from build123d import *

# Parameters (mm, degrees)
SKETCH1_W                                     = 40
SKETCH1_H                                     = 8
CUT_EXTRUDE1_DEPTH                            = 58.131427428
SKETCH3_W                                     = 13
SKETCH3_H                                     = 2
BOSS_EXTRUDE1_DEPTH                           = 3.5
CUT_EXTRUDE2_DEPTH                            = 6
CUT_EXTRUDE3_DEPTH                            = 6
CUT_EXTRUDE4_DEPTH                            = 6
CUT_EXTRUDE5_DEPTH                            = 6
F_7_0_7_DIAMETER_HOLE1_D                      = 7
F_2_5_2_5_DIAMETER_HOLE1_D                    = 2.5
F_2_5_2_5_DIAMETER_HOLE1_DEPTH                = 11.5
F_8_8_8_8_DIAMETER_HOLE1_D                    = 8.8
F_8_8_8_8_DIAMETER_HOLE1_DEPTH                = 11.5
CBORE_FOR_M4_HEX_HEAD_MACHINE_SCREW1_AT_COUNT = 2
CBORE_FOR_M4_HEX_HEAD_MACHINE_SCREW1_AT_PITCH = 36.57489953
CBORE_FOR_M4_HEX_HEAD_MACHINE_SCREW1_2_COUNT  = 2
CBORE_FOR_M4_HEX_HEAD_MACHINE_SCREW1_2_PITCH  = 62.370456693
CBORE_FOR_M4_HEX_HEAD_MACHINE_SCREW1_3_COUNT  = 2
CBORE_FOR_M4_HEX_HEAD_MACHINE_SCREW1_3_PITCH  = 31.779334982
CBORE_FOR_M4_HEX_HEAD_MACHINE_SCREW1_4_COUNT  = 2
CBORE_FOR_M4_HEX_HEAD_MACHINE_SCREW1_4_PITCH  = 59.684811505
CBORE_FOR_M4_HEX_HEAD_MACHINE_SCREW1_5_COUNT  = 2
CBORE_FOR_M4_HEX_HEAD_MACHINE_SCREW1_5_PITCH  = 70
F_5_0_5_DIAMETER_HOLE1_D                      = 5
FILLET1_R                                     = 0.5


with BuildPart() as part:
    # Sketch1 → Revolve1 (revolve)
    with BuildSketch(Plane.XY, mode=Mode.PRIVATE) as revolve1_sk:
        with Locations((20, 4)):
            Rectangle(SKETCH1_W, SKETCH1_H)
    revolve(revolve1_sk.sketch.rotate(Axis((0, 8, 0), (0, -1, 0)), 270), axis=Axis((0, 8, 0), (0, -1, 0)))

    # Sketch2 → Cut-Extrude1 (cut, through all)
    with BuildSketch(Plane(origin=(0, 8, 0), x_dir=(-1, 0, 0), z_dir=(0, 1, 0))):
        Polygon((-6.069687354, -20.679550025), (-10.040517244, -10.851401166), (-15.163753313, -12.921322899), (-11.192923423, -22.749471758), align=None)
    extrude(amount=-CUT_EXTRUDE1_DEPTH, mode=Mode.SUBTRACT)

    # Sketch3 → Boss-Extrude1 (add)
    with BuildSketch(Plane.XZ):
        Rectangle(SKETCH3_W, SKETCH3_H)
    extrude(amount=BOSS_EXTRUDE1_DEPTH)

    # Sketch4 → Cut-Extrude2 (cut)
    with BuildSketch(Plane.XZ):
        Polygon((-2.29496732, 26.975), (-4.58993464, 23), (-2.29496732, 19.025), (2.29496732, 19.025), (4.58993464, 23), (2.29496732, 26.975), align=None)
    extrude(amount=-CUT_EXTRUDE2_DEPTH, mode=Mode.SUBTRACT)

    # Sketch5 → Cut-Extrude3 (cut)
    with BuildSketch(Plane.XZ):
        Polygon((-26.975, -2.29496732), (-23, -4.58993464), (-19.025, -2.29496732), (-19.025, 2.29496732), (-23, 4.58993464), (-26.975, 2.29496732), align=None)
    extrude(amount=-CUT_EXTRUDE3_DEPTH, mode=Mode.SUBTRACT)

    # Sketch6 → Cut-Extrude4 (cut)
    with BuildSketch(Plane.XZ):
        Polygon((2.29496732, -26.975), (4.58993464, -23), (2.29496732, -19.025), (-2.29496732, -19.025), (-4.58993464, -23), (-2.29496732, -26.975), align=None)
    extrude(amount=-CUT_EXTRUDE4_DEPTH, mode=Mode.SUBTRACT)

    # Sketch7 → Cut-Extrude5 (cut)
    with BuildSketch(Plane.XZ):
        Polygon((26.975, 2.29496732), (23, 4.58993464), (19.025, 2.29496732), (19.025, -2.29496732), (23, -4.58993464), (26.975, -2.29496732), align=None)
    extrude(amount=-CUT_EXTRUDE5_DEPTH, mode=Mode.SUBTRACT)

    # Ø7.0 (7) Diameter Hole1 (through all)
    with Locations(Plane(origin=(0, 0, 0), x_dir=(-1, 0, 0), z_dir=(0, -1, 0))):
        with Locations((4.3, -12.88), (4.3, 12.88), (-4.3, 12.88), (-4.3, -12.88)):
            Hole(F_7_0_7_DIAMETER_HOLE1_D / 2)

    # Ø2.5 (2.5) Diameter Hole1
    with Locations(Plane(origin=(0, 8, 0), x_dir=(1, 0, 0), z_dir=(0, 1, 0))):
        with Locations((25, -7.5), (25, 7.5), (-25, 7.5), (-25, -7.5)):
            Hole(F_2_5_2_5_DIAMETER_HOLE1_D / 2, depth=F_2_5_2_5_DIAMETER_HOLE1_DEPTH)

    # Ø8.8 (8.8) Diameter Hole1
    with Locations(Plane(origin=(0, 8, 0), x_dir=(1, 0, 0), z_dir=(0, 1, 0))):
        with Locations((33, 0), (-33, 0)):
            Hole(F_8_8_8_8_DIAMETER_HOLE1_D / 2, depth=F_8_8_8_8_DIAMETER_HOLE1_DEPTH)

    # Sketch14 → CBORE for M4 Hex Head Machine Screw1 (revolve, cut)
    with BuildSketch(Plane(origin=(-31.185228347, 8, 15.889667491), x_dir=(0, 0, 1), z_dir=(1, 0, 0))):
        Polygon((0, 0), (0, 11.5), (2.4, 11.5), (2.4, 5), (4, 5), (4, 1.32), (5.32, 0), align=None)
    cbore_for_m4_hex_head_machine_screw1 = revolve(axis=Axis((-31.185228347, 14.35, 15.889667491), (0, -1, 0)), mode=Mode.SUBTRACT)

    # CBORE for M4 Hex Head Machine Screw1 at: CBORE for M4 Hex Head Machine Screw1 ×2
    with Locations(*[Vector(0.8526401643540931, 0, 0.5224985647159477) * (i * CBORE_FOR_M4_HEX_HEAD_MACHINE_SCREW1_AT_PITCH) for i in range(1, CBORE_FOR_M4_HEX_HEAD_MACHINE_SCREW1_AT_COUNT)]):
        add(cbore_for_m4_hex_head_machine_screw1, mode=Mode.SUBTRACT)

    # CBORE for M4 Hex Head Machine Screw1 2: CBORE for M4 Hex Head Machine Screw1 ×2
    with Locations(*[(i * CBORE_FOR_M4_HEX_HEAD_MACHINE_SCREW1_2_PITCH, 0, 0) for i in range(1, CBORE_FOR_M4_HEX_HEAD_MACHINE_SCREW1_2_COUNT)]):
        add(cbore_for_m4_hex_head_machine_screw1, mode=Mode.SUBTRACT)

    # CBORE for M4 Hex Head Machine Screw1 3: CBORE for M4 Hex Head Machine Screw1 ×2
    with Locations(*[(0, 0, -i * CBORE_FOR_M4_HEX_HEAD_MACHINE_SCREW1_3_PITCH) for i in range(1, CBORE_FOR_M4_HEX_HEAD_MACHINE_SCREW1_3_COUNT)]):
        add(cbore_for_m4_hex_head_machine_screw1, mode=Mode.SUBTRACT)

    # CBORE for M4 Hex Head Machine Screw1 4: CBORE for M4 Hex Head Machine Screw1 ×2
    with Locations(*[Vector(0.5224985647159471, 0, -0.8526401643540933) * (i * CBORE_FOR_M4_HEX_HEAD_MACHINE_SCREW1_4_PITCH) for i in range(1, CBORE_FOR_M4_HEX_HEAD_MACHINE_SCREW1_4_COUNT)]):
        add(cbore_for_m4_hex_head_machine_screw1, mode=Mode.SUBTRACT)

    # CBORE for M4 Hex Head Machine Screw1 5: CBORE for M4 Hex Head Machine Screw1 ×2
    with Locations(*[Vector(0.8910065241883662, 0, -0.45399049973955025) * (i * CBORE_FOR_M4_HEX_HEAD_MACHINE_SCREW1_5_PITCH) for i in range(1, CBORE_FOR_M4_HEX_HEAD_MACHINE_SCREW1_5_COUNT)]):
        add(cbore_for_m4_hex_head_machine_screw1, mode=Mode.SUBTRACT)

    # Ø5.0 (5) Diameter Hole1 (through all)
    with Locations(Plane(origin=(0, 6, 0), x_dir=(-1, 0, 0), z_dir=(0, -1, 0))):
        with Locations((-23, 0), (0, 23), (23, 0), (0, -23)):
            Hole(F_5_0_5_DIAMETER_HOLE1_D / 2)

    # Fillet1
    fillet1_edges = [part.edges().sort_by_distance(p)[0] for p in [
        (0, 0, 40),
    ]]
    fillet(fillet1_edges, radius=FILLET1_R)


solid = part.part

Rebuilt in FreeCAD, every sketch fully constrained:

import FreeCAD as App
import Part
import Sketcher
from FreeCAD import Vector
Q = App.Units.Quantity


def edges_at(feature, points):
    """Names of the edges that pass closest to the given points."""
    edges = feature.Shape.Edges
    near = lambda p: min(range(len(edges)), key=lambda i: edges[i].distToShape(Part.Vertex(*p))[0])
    return sorted({f"Edge{near(p) + 1}" for p in points})


def add_polygon(sketch, points):
    """Adds a closed chain of lines whose ends are joined by coincident constraints."""
    first, n = sketch.GeometryCount, len(points)
    for a, b in zip(points, points[1:] + points[:1]):
        sketch.addGeometry(Part.LineSegment(App.Vector(*a, 0), App.Vector(*b, 0)), False)
    for i in range(n):
        sketch.addConstraint(Sketcher.Constraint("Coincident", first + i, 2, first + (i + 1) % n, 1))

doc = App.newDocument("Part")
body = doc.addObject("PartDesign::Body", "Body")

sketch1 = body.newObject("Sketcher::SketchObject", "Sketch")
sketch1.AttachmentSupport = (doc.getObject("XY_Plane"), [""])
sketch1.MapMode = "FlatFace"
add_polygon(sketch1, [(0, 8), (0, 0), (40, 0), (40, 8)])
sketch1.addConstraint([
    Sketcher.Constraint("Vertical", 0),
    Sketcher.Constraint("Horizontal", 1),
    Sketcher.Constraint("Vertical", 2),
    Sketcher.Constraint("Horizontal", 3),
    Sketcher.Constraint("Coincident", 0, 2, -1, 1),
    Sketcher.Constraint("DistanceX", 1, 1, 1, 2, Q("40 mm")),
    Sketcher.Constraint("DistanceY", 0, 2, 0, 1, Q("8 mm")),
])
revolution = body.newObject("PartDesign::Revolution", "Revolution")
revolution.Profile = sketch1
revolution.ReferenceAxis = (sketch1, ["V_Axis"])
revolution.Angle = 360

sketch2 = body.newObject("Sketcher::SketchObject", "Sketch001")
sketch2.AttachmentSupport = (doc.getObject("XZ_Plane"), [""])
sketch2.MapMode = "FlatFace"
sketch2.AttachmentOffset = App.Placement(Vector(0, 0, -8), App.Rotation())
add_polygon(sketch2, [(6, -21), (10, -11), (15, -13), (11, -23)])
sketch2.addConstraint([
    Sketcher.Constraint("Perpendicular", 0, 1),
    Sketcher.Constraint("Perpendicular", 1, 2),
    Sketcher.Constraint("Perpendicular", 2, 3),
    Sketcher.Constraint("Angle", 0, Q("68 deg")),
    Sketcher.Constraint("Distance", 0, Q("10.6 mm")),
    Sketcher.Constraint("DistanceY", 0, 2, -1, 1, Q("10.851401 mm")),
    Sketcher.Constraint("Distance", 1, Q("5.525588 mm")),
    Sketcher.Constraint("DistanceX", -1, 1, 0, 2, Q("10.040517 mm")),
])
pocket1 = body.newObject("PartDesign::Pocket", "Pocket")
pocket1.Profile = sketch2
pocket1.Type = "ThroughAll"
pocket1.Reversed = True

sketch3 = body.newObject("Sketcher::SketchObject", "Sketch002")
sketch3.AttachmentSupport = (doc.getObject("XZ_Plane"), [""])
sketch3.MapMode = "FlatFace"
add_polygon(sketch3, [(-6.5, 1), (-6.5, -1), (6.5, -1), (6.5, 1)])
sketch3.addConstraint([
    Sketcher.Constraint("Vertical", 0),
    Sketcher.Constraint("Horizontal", 1),
    Sketcher.Constraint("Vertical", 2),
    Sketcher.Constraint("Horizontal", 3),
    Sketcher.Constraint("Symmetric", 0, 2, 2, 2, -1, 1),
    Sketcher.Constraint("DistanceX", 1, 1, 1, 2, Q("13 mm")),
    Sketcher.Constraint("DistanceY", 0, 2, 0, 1, Q("2 mm")),
])
pad1 = body.newObject("PartDesign::Pad", "Pad")
pad1.Profile = sketch3
pad1.Length = 3.5

sketch4 = body.newObject("Sketcher::SketchObject", "Sketch003")
sketch4.AttachmentSupport = (doc.getObject("XZ_Plane"), [""])
sketch4.MapMode = "FlatFace"
add_polygon(sketch4, [(-2.3, 27), (-4.6, 23), (-2.3, 19), (2.3, 19), (4.6, 23), (2.3, 27)])
sketch4.addConstraint([
    Sketcher.Constraint("Horizontal", 2),
    Sketcher.Constraint("Horizontal", 5),
    Sketcher.Constraint("Symmetric", 0, 2, 3, 2, -2),
    Sketcher.Constraint("Parallel", 0, 3),
    Sketcher.Constraint("Parallel", 1, 4),
    Sketcher.Constraint("Vertical", 2, 2, 4, 2),
    Sketcher.Constraint("Vertical", 1, 2, 5, 2),
    Sketcher.Constraint("Angle", 0, Q("-120 deg")),
    Sketcher.Constraint("DistanceY", -1, 1, 0, 2, Q("23 mm")),
    Sketcher.Constraint("DistanceY", 2, 2, 4, 2, Q("7.95 mm")),
    Sketcher.Constraint("DistanceX", 0, 2, 2, 2, Q("6.884902 mm")),
])
pocket2 = body.newObject("PartDesign::Pocket", "Pocket001")
pocket2.Profile = sketch4
pocket2.Length = 6

sketch5 = body.newObject("Sketcher::SketchObject", "Sketch004")
sketch5.AttachmentSupport = (doc.getObject("XZ_Plane"), [""])
sketch5.MapMode = "FlatFace"
add_polygon(sketch5, [(-27, -2.3), (-23, -4.6), (-19, -2.3), (-19, 2.3), (-23, 4.6), (-27, 2.3)])
sketch5.addConstraint([
    Sketcher.Constraint("Vertical", 2),
    Sketcher.Constraint("Vertical", 5),
    Sketcher.Constraint("Symmetric", 0, 2, 3, 2, -1),
    Sketcher.Constraint("Parallel", 0, 3),
    Sketcher.Constraint("Parallel", 1, 4),
    Sketcher.Constraint("Horizontal", 2, 2, 4, 2),
    Sketcher.Constraint("Horizontal", 1, 2, 5, 2),
    Sketcher.Constraint("Angle", 0, Q("-30 deg")),
    Sketcher.Constraint("DistanceX", 0, 2, -1, 1, Q("23 mm")),
    Sketcher.Constraint("DistanceX", 4, 2, 2, 2, Q("7.95 mm")),
    Sketcher.Constraint("DistanceY", 0, 2, 2, 2, Q("6.884902 mm")),
])
pocket3 = body.newObject("PartDesign::Pocket", "Pocket002")
pocket3.Profile = sketch5
pocket3.Length = 6

sketch6 = body.newObject("Sketcher::SketchObject", "Sketch005")
sketch6.AttachmentSupport = (doc.getObject("XZ_Plane"), [""])
sketch6.MapMode = "FlatFace"
add_polygon(sketch6, [(2.3, -27), (4.6, -23), (2.3, -19), (-2.3, -19), (-4.6, -23), (-2.3, -27)])
sketch6.addConstraint([
    Sketcher.Constraint("Horizontal", 2),
    Sketcher.Constraint("Horizontal", 5),
    Sketcher.Constraint("Symmetric", 0, 2, 3, 2, -2),
    Sketcher.Constraint("Parallel", 0, 3),
    Sketcher.Constraint("Parallel", 1, 4),
    Sketcher.Constraint("Vertical", 2, 2, 4, 2),
    Sketcher.Constraint("Vertical", 1, 2, 5, 2),
    Sketcher.Constraint("Angle", 0, Q("60 deg")),
    Sketcher.Constraint("DistanceY", 0, 2, -1, 1, Q("23 mm")),
    Sketcher.Constraint("DistanceY", 4, 2, 2, 2, Q("7.95 mm")),
    Sketcher.Constraint("DistanceX", 2, 2, 0, 2, Q("6.884902 mm")),
])
pocket4 = body.newObject("PartDesign::Pocket", "Pocket003")
pocket4.Profile = sketch6
pocket4.Length = 6

sketch7 = body.newObject("Sketcher::SketchObject", "Sketch006")
sketch7.AttachmentSupport = (doc.getObject("XZ_Plane"), [""])
sketch7.MapMode = "FlatFace"
add_polygon(sketch7, [(27, 2.3), (23, 4.6), (19, 2.3), (19, -2.3), (23, -4.6), (27, -2.3)])
sketch7.addConstraint([
    Sketcher.Constraint("Vertical", 2),
    Sketcher.Constraint("Vertical", 5),
    Sketcher.Constraint("Symmetric", 0, 2, 3, 2, -1),
    Sketcher.Constraint("Parallel", 0, 3),
    Sketcher.Constraint("Parallel", 1, 4),
    Sketcher.Constraint("Horizontal", 2, 2, 4, 2),
    Sketcher.Constraint("Horizontal", 1, 2, 5, 2),
    Sketcher.Constraint("Angle", 0, Q("150 deg")),
    Sketcher.Constraint("DistanceX", -1, 1, 0, 2, Q("23 mm")),
    Sketcher.Constraint("DistanceX", 2, 2, 4, 2, Q("7.95 mm")),
    Sketcher.Constraint("DistanceY", 2, 2, 0, 2, Q("6.884902 mm")),
])
pocket5 = body.newObject("PartDesign::Pocket", "Pocket004")
pocket5.Profile = sketch7
pocket5.Length = 6

sketch8 = body.newObject("Sketcher::SketchObject", "Sketch007")
sketch8.AttachmentSupport = (doc.getObject("XZ_Plane"), [""])
sketch8.MapMode = "FlatFace"
sketch8.addGeometry([
    Part.Circle(Vector(-4.3, 12.9, 0), Vector(0, 0, 1), 3.5),
    Part.Circle(Vector(-4.3, -12.9, 0), Vector(0, 0, 1), 3.5),
    Part.Circle(Vector(4.3, -12.9, 0), Vector(0, 0, 1), 3.5),
    Part.Circle(Vector(4.3, 12.9, 0), Vector(0, 0, 1), 3.5),
], False)
sketch8.addConstraint([
    Sketcher.Constraint("Equal", 0, 1),
    Sketcher.Constraint("Equal", 1, 2),
    Sketcher.Constraint("Equal", 2, 3),
    Sketcher.Constraint("Symmetric", 0, 3, 2, 3, -1, 1),
    Sketcher.Constraint("Symmetric", 1, 3, 3, 3, -1, 1),
    Sketcher.Constraint("Symmetric", 1, 3, 2, 3, -2),
    Sketcher.Constraint("Diameter", 0, Q("7 mm")),
    Sketcher.Constraint("DistanceX", 0, 3, -1, 1, Q("4.3 mm")),
    Sketcher.Constraint("DistanceY", -1, 1, 0, 3, Q("12.88 mm")),
])
doc.recompute()
hole = body.newObject("PartDesign::Hole", "Hole")
hole.Profile = sketch8
hole.ThreadType = "None"
hole.Diameter = 7
hole.DepthType = "ThroughAll"

sketch9 = body.newObject("Sketcher::SketchObject", "Sketch008")
sketch9.AttachmentSupport = (doc.getObject("XZ_Plane"), [""])
sketch9.MapMode = "FlatFace"
sketch9.AttachmentOffset = App.Placement(Vector(0, 0, -8), App.Rotation())
sketch9.addGeometry([
    Part.Circle(Vector(25, 7.5, 0), Vector(0, 0, 1), 1.2),
    Part.Circle(Vector(25, -7.5, 0), Vector(0, 0, 1), 1.2),
    Part.Circle(Vector(-25, -7.5, 0), Vector(0, 0, 1), 1.2),
    Part.Circle(Vector(-25, 7.5, 0), Vector(0, 0, 1), 1.2),
], False)
sketch9.addConstraint([
    Sketcher.Constraint("Equal", 0, 1),
    Sketcher.Constraint("Equal", 1, 2),
    Sketcher.Constraint("Equal", 2, 3),
    Sketcher.Constraint("Symmetric", 0, 3, 2, 3, -1, 1),
    Sketcher.Constraint("Symmetric", 1, 3, 3, 3, -1, 1),
    Sketcher.Constraint("Symmetric", 1, 3, 2, 3, -2),
    Sketcher.Constraint("Diameter", 0, Q("2.5 mm")),
    Sketcher.Constraint("DistanceX", -1, 1, 0, 3, Q("25 mm")),
    Sketcher.Constraint("DistanceY", 1, 3, 0, 3, Q("15 mm")),
])
doc.recompute()
hole2 = body.newObject("PartDesign::Hole", "Hole001")
hole2.Profile = sketch9
hole2.ThreadType = "None"
hole2.Diameter = 2.5
hole2.DepthType = "Dimension"
hole2.Depth = 11.5
hole2.DrillPoint = "Flat"
hole2.Reversed = True

sketch10 = body.newObject("Sketcher::SketchObject", "Sketch009")
sketch10.AttachmentSupport = (doc.getObject("XZ_Plane"), [""])
sketch10.MapMode = "FlatFace"
sketch10.AttachmentOffset = App.Placement(Vector(0, 0, -8), App.Rotation())
sketch10.addGeometry([
    Part.Circle(Vector(33, 0, 0), Vector(0, 0, 1), 4.4),
    Part.Circle(Vector(-33, 0, 0), Vector(0, 0, 1), 4.4),
], False)
sketch10.addConstraint([
    Sketcher.Constraint("Equal", 0, 1),
    Sketcher.Constraint("Symmetric", 0, 3, 1, 3, -1, 1),
    Sketcher.Constraint("PointOnObject", 0, 3, -1),
    Sketcher.Constraint("Diameter", 0, Q("8.8 mm")),
    Sketcher.Constraint("DistanceX", -1, 1, 0, 3, Q("33 mm")),
])
doc.recompute()
hole3 = body.newObject("PartDesign::Hole", "Hole002")
hole3.Profile = sketch10
hole3.ThreadType = "None"
hole3.Diameter = 8.8
hole3.DepthType = "Dimension"
hole3.Depth = 11.5
hole3.DrillPoint = "Flat"
hole3.Reversed = True

sketch11 = body.newObject("Sketcher::SketchObject", "Sketch010")
sketch11.AttachmentSupport = (doc.getObject("YZ_Plane"), [""])
sketch11.MapMode = "FlatFace"
sketch11.AttachmentOffset = App.Placement(Vector(0, 0, -31.185228), App.Rotation())
add_polygon(sketch11, [(-3.5, 15.9), (8, 15.9), (8, 21.2), (6.7, 19.9), (3, 19.9), (3, 18.3), (-3.5, 18.3)])
sketch11.addGeometry(Part.LineSegment(Vector(8, 15.9, 0), Vector(-3.5, 15.9, 0)), True)
sketch11.addConstraint([
    Sketcher.Constraint("Horizontal", 0),
    Sketcher.Constraint("Vertical", 1),
    Sketcher.Constraint("Horizontal", 3),
    Sketcher.Constraint("Vertical", 4),
    Sketcher.Constraint("Horizontal", 5),
    Sketcher.Constraint("Vertical", 6),
    Sketcher.Constraint("Horizontal", 7),
    Sketcher.Constraint("Coincident", 7, 1, 0, 2),
    Sketcher.Constraint("Vertical", 5, 2, 7, 2),
    Sketcher.Constraint("Angle", 2, Q("-135 deg")),
    Sketcher.Constraint("DistanceX", 0, 1, 0, 2, Q("11.5 mm")),
    Sketcher.Constraint("DistanceX", 5, 2, 5, 1, Q("6.5 mm")),
    Sketcher.Constraint("DistanceY", 4, 2, 4, 1, Q("1.6 mm")),
    Sketcher.Constraint("DistanceY", 6, 2, 6, 1, Q("2.4 mm")),
    Sketcher.Constraint("DistanceX", -1, 1, 0, 2, Q("8 mm")),
    Sketcher.Constraint("DistanceX", 3, 2, 3, 1, Q("3.68 mm")),
    Sketcher.Constraint("DistanceY", -1, 1, 0, 2, Q("15.889667 mm")),
])
groove = body.newObject("PartDesign::Groove", "Groove")
groove.Profile = sketch11
groove.ReferenceAxis = (sketch11, ["Axis0"])
groove.Angle = 360
doc.recompute()

datumline = body.newObject("PartDesign::Line", "DatumLine")
datumline.Placement = App.Placement(Vector(0, 0, 0), App.Rotation(Vector(0, 0, 1), Vector(0.852640164, 0, 0.522498565)))
linearpattern = body.newObject("PartDesign::LinearPattern", "LinearPattern")
linearpattern.Originals = [groove]
linearpattern.Direction = (datumline, [""])
linearpattern.Mode = "offset"
linearpattern.Offset = 36.5749
linearpattern.Occurrences = 2
body.Tip = linearpattern
doc.recompute()

linearpattern2 = body.newObject("PartDesign::LinearPattern", "LinearPattern001")
linearpattern2.Originals = [groove]
linearpattern2.Direction = (doc.getObject("X_Axis"), [""])
linearpattern2.Mode = "offset"
linearpattern2.Offset = 62.370457
linearpattern2.Occurrences = 2
body.Tip = linearpattern2
doc.recompute()

linearpattern3 = body.newObject("PartDesign::LinearPattern", "LinearPattern002")
linearpattern3.Originals = [groove]
linearpattern3.Direction = (doc.getObject("Z_Axis"), [""])
linearpattern3.Mode = "offset"
linearpattern3.Offset = 31.779335
linearpattern3.Occurrences = 2
linearpattern3.Reversed = True
body.Tip = linearpattern3
doc.recompute()

datumline2 = body.newObject("PartDesign::Line", "DatumLine001")
datumline2.Placement = App.Placement(Vector(0, 0, 0), App.Rotation(Vector(0, 0, 1), Vector(0.522498565, 0, -0.852640164)))
linearpattern4 = body.newObject("PartDesign::LinearPattern", "LinearPattern003")
linearpattern4.Originals = [groove]
linearpattern4.Direction = (datumline2, [""])
linearpattern4.Mode = "offset"
linearpattern4.Offset = 59.684812
linearpattern4.Occurrences = 2
body.Tip = linearpattern4
doc.recompute()

datumline3 = body.newObject("PartDesign::Line", "DatumLine002")
datumline3.Placement = App.Placement(Vector(0, 0, 0), App.Rotation(Vector(0, 0, 1), Vector(0.891006524, 0, -0.4539905)))
linearpattern5 = body.newObject("PartDesign::LinearPattern", "LinearPattern004")
linearpattern5.Originals = [groove]
linearpattern5.Direction = (datumline3, [""])
linearpattern5.Mode = "offset"
linearpattern5.Offset = 70
linearpattern5.Occurrences = 2
body.Tip = linearpattern5

sketch12 = body.newObject("Sketcher::SketchObject", "Sketch011")
sketch12.AttachmentSupport = (doc.getObject("XZ_Plane"), [""])
sketch12.MapMode = "FlatFace"
sketch12.AttachmentOffset = App.Placement(Vector(0, 0, -6), App.Rotation())
sketch12.addGeometry([
    Part.Circle(Vector(23, 0, 0), Vector(0, 0, 1), 2.5),
    Part.Circle(Vector(0, -23, 0), Vector(0, 0, 1), 2.5),
    Part.Circle(Vector(-23, 0, 0), Vector(0, 0, 1), 2.5),
    Part.Circle(Vector(0, 23, 0), Vector(0, 0, 1), 2.5),
], False)
sketch12.addConstraint([
    Sketcher.Constraint("Equal", 0, 1),
    Sketcher.Constraint("Equal", 1, 2),
    Sketcher.Constraint("Equal", 2, 3),
    Sketcher.Constraint("Symmetric", 0, 3, 2, 3, -1, 1),
    Sketcher.Constraint("Symmetric", 1, 3, 3, 3, -1, 1),
    Sketcher.Constraint("PointOnObject", 0, 3, -1),
    Sketcher.Constraint("PointOnObject", 1, 3, -2),
    Sketcher.Constraint("Diameter", 0, Q("5 mm")),
    Sketcher.Constraint("DistanceX", -1, 1, 0, 3, Q("23 mm")),
    Sketcher.Constraint("DistanceY", 1, 3, -1, 1, Q("23 mm")),
])
doc.recompute()
hole4 = body.newObject("PartDesign::Hole", "Hole003")
hole4.Profile = sketch12
hole4.ThreadType = "None"
hole4.Diameter = 5
hole4.DepthType = "ThroughAll"
doc.recompute()

fillet = body.newObject("PartDesign::Fillet", "Fillet")
fillet.Base = (hole4, edges_at(hole4, [(0, 0, 40)]))
fillet.Radius = 0.5

doc.recompute()
